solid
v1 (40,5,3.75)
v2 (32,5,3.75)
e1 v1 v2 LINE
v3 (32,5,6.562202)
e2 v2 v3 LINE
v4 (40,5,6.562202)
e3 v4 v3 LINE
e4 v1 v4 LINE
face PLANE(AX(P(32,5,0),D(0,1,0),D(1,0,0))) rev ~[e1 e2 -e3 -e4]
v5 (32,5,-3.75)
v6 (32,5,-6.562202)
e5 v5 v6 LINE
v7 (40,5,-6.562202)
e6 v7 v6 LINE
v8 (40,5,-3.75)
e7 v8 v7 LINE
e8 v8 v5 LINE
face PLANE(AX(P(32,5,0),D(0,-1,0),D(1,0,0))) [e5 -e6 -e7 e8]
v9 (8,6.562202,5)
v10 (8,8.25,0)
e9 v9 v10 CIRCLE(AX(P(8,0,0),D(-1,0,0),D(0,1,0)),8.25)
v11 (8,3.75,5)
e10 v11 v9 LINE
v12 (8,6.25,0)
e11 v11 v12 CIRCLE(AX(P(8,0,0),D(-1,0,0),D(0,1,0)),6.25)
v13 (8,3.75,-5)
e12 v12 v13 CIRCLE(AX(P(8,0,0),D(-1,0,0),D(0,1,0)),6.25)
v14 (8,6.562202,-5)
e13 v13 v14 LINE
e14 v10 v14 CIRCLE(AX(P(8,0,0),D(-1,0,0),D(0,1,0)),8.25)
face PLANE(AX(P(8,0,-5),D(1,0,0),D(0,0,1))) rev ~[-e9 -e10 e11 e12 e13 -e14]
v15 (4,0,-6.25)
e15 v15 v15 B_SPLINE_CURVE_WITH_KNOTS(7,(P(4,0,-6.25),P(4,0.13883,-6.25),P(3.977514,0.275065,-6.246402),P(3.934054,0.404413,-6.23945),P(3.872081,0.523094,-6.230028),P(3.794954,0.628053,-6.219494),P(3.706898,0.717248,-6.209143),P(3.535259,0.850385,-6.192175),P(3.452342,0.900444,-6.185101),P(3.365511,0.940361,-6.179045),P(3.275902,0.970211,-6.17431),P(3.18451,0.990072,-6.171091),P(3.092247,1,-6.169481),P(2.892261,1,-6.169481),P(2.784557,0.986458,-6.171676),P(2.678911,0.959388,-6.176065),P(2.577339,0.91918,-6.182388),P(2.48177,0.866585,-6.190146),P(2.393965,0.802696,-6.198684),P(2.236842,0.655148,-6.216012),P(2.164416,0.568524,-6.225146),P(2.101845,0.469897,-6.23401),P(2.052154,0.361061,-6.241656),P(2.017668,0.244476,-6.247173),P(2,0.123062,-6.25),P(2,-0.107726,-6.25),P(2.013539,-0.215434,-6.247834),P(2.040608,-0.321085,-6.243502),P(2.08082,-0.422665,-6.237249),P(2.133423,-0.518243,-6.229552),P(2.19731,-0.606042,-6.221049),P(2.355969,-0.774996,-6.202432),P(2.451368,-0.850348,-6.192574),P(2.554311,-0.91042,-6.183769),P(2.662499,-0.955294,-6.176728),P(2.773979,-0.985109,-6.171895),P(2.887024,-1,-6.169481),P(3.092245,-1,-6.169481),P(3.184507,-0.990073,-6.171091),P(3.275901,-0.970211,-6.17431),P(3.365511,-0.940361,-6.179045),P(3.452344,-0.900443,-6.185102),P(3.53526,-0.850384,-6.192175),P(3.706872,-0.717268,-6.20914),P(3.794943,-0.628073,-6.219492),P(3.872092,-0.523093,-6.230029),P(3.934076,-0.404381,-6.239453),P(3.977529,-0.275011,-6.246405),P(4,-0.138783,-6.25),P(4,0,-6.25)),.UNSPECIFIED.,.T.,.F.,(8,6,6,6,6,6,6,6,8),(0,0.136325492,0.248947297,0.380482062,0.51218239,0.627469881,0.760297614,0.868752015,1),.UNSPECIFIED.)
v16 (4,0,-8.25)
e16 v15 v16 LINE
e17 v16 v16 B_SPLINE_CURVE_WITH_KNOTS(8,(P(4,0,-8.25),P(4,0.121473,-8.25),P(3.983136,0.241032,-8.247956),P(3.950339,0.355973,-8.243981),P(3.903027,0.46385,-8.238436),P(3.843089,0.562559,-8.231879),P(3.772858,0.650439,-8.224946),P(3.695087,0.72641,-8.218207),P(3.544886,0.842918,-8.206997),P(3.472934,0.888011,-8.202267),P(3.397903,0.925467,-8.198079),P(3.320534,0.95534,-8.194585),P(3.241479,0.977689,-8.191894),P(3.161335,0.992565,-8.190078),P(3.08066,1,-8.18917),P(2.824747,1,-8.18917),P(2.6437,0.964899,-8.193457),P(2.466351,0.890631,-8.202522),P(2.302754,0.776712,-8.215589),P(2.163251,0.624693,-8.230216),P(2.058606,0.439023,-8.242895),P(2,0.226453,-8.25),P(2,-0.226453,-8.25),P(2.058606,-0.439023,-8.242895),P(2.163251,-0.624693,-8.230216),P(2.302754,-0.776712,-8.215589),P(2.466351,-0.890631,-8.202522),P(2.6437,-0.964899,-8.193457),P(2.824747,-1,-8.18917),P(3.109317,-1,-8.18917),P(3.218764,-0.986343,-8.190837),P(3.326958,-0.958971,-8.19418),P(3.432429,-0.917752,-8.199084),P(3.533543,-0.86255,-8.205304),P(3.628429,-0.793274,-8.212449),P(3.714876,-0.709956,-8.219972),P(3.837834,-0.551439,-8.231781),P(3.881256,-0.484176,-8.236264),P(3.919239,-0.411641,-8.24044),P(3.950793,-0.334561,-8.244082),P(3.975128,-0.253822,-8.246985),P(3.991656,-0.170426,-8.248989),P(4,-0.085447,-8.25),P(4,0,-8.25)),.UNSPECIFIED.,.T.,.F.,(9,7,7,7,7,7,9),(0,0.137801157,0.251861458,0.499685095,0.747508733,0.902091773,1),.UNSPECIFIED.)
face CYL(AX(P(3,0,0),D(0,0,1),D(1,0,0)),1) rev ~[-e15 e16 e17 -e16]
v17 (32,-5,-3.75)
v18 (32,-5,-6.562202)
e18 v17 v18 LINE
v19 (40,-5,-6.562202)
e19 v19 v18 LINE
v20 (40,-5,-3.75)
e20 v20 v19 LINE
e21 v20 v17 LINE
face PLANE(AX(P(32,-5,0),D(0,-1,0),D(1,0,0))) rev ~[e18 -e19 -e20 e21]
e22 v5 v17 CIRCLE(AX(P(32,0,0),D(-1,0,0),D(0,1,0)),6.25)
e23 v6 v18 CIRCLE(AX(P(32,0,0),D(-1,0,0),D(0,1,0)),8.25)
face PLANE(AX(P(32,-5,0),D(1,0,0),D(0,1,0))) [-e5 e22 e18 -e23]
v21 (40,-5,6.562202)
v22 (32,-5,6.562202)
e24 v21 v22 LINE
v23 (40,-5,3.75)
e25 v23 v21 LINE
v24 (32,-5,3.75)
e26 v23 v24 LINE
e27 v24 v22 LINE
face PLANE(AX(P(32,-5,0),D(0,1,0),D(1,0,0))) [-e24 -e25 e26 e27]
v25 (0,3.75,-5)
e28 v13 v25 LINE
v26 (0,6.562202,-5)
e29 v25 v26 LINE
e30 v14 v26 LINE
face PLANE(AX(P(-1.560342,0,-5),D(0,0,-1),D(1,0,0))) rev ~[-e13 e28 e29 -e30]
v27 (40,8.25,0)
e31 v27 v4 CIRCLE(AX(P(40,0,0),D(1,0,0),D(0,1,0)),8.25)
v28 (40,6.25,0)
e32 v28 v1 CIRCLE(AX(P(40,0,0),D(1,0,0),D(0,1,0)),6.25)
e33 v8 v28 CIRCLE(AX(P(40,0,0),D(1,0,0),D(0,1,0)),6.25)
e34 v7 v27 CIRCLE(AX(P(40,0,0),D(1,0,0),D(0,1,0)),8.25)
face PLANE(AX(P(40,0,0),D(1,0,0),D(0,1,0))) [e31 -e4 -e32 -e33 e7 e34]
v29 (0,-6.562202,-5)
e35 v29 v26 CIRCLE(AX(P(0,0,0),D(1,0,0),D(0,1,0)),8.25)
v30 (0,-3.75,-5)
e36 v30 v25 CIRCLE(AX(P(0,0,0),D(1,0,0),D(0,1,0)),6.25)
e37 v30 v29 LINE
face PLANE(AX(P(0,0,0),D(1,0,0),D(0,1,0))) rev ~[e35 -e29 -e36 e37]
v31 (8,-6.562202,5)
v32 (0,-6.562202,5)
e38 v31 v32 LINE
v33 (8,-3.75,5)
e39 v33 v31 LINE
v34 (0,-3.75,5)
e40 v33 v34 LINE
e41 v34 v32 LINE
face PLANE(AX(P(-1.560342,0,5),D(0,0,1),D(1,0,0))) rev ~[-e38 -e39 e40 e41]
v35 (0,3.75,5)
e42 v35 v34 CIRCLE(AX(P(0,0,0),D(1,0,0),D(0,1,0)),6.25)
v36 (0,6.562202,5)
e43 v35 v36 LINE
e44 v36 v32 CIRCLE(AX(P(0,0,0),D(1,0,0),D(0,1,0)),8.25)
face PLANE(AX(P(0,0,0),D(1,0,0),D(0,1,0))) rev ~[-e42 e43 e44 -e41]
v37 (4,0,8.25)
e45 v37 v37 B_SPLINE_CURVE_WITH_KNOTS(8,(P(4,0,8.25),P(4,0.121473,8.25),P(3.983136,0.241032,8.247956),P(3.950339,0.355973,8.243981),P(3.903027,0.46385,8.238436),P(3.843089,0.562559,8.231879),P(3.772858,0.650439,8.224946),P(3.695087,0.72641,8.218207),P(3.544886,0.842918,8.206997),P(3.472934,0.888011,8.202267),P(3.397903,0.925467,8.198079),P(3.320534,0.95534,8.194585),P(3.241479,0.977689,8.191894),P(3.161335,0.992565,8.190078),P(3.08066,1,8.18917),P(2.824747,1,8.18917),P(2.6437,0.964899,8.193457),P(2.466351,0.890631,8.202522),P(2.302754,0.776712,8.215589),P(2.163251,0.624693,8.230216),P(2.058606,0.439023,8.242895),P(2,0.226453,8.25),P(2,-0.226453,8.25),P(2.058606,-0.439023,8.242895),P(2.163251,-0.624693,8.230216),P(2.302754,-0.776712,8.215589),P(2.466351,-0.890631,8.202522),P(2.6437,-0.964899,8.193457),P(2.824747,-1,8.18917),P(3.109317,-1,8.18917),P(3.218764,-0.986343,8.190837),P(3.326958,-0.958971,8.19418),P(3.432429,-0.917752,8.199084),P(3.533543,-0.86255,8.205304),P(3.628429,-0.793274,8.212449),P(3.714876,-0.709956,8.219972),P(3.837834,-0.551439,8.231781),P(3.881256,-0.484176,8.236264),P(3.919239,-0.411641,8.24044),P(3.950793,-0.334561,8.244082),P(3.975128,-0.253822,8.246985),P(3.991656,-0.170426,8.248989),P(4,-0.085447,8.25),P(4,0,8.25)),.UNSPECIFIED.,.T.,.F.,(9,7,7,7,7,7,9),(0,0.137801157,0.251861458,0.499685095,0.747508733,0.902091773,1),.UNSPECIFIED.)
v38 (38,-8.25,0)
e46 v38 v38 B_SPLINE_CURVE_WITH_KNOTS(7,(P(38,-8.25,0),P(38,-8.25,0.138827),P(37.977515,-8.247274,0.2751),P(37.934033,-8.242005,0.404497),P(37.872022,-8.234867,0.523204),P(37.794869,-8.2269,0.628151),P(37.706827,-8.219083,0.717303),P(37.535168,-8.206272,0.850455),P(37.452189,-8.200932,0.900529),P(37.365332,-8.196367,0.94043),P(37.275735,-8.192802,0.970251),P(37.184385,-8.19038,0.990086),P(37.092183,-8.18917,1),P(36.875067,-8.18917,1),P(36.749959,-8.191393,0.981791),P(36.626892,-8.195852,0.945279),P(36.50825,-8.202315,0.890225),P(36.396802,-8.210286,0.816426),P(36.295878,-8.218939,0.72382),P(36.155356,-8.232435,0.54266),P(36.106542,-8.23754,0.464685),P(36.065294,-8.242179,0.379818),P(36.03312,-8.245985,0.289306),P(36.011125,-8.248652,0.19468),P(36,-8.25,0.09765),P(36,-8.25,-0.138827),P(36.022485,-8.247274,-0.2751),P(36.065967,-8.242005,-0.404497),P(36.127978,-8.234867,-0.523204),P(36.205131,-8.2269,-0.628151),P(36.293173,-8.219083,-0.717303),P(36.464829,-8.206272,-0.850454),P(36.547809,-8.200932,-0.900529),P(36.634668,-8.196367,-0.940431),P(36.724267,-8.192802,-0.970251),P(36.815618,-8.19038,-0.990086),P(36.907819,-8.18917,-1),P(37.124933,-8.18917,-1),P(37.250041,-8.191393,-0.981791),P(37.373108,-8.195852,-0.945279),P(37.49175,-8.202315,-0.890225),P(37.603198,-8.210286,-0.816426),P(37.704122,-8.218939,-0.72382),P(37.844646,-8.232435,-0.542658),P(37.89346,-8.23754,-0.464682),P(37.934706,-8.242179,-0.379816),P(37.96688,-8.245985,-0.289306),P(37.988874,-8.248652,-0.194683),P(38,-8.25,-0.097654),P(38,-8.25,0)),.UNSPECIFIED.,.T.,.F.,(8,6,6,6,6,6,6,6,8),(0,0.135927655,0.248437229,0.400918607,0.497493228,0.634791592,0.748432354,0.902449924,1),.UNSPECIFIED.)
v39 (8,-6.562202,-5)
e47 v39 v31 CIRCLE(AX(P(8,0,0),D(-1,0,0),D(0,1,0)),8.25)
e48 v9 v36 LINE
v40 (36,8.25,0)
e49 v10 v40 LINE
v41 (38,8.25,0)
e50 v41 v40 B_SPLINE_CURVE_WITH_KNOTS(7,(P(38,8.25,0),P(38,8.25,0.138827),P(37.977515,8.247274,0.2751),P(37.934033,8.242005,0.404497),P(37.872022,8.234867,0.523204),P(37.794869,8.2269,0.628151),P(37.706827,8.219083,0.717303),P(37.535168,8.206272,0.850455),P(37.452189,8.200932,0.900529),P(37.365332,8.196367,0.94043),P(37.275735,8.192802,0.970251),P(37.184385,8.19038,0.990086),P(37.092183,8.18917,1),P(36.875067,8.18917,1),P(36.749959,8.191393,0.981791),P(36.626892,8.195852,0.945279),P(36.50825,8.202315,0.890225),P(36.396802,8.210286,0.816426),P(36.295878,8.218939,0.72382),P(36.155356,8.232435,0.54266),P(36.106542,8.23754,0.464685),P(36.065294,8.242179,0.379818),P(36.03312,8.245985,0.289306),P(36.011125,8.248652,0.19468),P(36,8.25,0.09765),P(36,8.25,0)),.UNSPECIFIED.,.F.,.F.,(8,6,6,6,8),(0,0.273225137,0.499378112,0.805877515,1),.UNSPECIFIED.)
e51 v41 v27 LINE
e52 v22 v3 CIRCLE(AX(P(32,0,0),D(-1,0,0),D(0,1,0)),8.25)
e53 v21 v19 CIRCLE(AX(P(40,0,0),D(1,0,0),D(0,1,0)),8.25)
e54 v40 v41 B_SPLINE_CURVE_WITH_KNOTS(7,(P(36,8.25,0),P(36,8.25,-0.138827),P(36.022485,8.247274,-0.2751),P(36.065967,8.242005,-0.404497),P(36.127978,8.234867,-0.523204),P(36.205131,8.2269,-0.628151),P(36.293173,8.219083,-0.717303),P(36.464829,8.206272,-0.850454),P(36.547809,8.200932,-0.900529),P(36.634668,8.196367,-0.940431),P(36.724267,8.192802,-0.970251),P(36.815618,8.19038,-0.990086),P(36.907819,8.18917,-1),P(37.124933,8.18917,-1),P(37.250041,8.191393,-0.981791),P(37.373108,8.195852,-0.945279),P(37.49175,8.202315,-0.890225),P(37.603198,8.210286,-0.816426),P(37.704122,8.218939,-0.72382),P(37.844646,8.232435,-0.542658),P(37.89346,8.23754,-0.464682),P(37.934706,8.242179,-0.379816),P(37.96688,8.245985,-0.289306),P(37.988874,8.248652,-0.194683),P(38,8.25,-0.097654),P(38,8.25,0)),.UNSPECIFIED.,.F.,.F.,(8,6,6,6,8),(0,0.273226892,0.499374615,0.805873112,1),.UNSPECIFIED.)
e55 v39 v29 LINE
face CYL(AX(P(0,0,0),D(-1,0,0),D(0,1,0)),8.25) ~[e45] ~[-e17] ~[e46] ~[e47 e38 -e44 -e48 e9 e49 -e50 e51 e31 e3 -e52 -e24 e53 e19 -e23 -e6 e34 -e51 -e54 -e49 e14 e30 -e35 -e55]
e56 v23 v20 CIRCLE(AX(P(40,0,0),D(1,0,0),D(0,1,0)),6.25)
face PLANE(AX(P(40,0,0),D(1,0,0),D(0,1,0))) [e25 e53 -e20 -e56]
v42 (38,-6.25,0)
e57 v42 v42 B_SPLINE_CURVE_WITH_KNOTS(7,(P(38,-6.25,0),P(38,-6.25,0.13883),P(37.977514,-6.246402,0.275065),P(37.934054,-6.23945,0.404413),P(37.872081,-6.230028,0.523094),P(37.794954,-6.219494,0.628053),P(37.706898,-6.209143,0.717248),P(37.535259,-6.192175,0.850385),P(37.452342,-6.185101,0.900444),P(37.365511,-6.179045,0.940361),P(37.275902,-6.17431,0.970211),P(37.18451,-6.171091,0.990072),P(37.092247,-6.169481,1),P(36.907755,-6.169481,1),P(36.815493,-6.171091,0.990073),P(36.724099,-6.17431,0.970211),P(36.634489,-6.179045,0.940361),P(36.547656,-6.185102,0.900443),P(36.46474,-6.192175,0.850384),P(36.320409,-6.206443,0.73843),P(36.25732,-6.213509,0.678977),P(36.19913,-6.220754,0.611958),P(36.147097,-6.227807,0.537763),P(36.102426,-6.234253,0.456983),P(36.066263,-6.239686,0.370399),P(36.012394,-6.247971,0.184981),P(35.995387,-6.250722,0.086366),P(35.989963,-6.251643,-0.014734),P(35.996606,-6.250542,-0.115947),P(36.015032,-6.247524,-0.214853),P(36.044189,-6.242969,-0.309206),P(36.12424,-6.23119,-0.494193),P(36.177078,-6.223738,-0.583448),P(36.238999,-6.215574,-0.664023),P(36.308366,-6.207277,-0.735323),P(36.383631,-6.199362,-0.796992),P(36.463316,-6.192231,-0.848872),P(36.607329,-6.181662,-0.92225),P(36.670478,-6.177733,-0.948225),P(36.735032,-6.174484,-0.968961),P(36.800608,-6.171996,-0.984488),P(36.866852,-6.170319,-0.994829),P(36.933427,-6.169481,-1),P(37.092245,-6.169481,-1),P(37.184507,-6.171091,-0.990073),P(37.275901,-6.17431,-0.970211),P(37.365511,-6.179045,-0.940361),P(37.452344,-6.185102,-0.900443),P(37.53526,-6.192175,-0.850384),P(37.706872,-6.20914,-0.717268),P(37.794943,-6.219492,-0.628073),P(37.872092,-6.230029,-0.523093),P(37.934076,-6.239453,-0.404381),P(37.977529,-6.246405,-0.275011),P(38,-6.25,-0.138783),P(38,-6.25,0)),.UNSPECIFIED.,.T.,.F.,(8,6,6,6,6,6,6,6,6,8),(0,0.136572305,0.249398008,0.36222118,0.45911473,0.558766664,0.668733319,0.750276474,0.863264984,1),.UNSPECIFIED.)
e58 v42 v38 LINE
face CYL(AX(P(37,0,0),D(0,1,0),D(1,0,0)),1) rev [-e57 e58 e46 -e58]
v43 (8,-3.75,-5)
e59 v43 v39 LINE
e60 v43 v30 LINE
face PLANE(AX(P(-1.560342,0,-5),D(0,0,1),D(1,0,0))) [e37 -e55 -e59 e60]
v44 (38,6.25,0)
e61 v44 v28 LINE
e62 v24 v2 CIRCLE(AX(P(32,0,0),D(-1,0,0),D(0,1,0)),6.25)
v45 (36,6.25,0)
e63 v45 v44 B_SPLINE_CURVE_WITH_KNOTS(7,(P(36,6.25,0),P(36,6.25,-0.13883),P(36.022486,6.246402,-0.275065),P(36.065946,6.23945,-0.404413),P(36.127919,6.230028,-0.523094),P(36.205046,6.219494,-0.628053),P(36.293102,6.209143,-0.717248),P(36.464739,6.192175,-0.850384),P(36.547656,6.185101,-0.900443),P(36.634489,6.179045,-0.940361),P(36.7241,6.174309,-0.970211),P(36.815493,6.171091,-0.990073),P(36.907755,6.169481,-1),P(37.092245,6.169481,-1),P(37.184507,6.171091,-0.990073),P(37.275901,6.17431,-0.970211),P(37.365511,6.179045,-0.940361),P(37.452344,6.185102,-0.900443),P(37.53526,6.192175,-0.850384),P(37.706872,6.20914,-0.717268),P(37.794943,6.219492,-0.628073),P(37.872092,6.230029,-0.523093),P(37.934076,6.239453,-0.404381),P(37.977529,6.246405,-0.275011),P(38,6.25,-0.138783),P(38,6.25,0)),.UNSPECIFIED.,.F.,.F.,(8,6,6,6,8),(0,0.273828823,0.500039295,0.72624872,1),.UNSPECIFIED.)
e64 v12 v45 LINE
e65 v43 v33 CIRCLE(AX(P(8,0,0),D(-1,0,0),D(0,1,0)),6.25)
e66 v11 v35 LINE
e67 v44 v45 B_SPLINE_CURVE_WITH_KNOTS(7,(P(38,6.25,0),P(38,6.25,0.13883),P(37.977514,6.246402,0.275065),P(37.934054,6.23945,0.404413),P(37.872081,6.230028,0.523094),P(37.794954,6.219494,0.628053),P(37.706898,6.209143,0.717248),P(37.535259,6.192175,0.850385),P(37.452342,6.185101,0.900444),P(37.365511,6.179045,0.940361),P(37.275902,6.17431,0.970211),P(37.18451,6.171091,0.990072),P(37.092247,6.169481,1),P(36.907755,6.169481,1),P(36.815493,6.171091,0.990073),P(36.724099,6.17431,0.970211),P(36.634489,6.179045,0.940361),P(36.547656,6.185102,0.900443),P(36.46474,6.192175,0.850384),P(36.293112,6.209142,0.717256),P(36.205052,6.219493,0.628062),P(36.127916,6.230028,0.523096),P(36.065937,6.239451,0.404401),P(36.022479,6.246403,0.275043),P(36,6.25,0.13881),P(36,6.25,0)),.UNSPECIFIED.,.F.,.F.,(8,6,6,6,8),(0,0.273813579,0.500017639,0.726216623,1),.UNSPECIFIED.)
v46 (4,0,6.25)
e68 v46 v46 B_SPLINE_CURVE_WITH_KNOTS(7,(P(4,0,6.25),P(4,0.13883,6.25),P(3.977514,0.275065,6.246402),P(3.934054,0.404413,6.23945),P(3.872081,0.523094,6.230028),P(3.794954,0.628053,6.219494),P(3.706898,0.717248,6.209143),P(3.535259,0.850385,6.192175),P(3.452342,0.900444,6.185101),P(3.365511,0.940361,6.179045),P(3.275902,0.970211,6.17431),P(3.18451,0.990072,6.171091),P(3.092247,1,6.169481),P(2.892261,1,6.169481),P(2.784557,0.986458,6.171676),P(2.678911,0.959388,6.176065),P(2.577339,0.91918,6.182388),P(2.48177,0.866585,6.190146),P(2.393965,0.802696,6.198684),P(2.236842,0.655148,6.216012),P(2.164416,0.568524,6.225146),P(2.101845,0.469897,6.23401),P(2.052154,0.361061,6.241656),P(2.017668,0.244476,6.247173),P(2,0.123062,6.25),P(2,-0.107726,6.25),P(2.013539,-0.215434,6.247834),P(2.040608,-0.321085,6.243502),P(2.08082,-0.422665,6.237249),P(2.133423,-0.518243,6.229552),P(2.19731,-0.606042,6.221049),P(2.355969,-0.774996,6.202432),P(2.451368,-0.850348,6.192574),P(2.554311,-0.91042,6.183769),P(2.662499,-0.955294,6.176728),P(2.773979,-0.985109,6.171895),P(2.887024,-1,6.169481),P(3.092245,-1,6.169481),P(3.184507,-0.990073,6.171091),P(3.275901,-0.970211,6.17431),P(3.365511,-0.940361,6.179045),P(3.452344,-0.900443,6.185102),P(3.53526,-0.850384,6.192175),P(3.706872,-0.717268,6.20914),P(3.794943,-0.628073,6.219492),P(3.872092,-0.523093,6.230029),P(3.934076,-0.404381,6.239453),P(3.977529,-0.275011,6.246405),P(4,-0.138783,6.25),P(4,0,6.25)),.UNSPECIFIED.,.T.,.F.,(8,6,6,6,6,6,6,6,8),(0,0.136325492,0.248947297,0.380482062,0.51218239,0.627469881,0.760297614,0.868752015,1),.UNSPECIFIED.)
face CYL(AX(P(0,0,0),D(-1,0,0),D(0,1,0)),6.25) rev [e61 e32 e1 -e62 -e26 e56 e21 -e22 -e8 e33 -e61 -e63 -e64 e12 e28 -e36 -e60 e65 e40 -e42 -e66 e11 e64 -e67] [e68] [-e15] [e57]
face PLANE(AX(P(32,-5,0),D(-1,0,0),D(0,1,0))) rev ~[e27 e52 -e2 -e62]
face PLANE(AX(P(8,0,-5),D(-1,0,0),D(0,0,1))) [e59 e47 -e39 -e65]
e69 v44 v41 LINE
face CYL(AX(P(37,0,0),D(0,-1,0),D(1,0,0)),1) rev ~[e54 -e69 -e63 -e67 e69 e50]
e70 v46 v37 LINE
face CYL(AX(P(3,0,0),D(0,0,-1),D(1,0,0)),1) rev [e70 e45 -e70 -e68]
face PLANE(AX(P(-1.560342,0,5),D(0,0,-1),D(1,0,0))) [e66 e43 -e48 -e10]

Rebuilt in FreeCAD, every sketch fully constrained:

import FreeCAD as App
import Part
import Sketcher
Q = App.Units.Quantity


def add_polygon(sketch, points):
    """Adds a closed chain of lines whose ends are joined by coincident constraints."""
    first, n = sketch.GeometryCount, len(points)
    for a, b in zip(points, points[1:] + points[:1]):
        sketch.addGeometry(Part.LineSegment(App.Vector(*a, 0), App.Vector(*b, 0)), False)
    for i in range(n):
        sketch.addConstraint(Sketcher.Constraint("Coincident", first + i, 2, first + (i + 1) % n, 1))

doc = App.newDocument("Part")
body = doc.addObject("PartDesign::Body", "Body")

# Sketch on YZ plane
sketch1 = body.newObject("Sketcher::SketchObject", "Sketch")
sketch1.AttachmentSupport = (doc.getObject("YZ_Plane"), [""])
sketch1.MapMode = "FlatFace"
sketch1.addGeometry([
    Part.Circle(App.Vector(0, 0, 0), App.Vector(0, 0, 1), 8),
    Part.Circle(App.Vector(0, 0, 0), App.Vector(0, 0, 1), 6),
], False)
sketch1.addConstraint([
    Sketcher.Constraint("Coincident", 0, 3, -1, 1),
    Sketcher.Constraint("Coincident", 1, 3, -1, 1),
    Sketcher.Constraint("Diameter", 0, Q("16.5 mm")),
    Sketcher.Constraint("Diameter", 1, Q("12.5 mm")),
])
pad1 = body.newObject("PartDesign::Pad", "Pad")
pad1.Profile = sketch1
pad1.Length = 40

# Sketch on XY plane
sketch2 = body.newObject("Sketcher::SketchObject", "Sketch001")
sketch2.AttachmentSupport = (doc.getObject("XY_Plane"), [""])
sketch2.MapMode = "FlatFace"
add_polygon(sketch2, [(32, 5), (32, -5), (52.5, -5), (52.5, 5)])  # lines 0-3
sketch2.addGeometry(Part.Circle(App.Vector(3, 0, 0), App.Vector(0, 0, 1), 1), False)  # 4
sketch2.addConstraint([
    Sketcher.Constraint("Vertical", 0),
    Sketcher.Constraint("Horizontal", 1),
    Sketcher.Constraint("Vertical", 2),
    Sketcher.Constraint("Horizontal", 3),
    Sketcher.Constraint("PointOnObject", 4, 3, -1),
    Sketcher.Constraint("Diameter", 4, Q("2 mm")),
    Sketcher.Constraint("DistanceY", 0, 2, 0, 1, Q("10 mm")),
    Sketcher.Constraint("DistanceX", -1, 1, 4, 3, Q("3 mm")),
    Sketcher.Constraint("DistanceX", -1, 1, 0, 2, Q("32 mm")),
    Sketcher.Constraint("DistanceY", 0, 2, -1, 1, Q("5 mm")),
    Sketcher.Constraint("DistanceX", 1, 1, 1, 2, Q("20.535375 mm")),
])
pocket1 = body.newObject("PartDesign::Pocket", "Pocket")
pocket1.Profile = sketch2
pocket1.Type = "ThroughAll"
pocket1.Midplane = True

# Sketch on XZ plane
sketch3 = body.newObject("Sketcher::SketchObject", "Sketch002")
sketch3.AttachmentSupport = (doc.getObject("XZ_Plane"), [""])
sketch3.MapMode = "FlatFace"
sketch3.addGeometry(Part.Circle(App.Vector(37, 0, 0), App.Vector(0, 0, 1), 1), False)  # 0
add_polygon(sketch3, [(-1.6, 5), (-1.6, -5), (8, -5), (8, 5)])  # lines 1-4
sketch3.addConstraint([
    Sketcher.Constraint("Vertical", 1),
    Sketcher.Constraint("Horizontal", 2),
    Sketcher.Constraint("Vertical", 3),
    Sketcher.Constraint("Horizontal", 4),
    Sketcher.Constraint("PointOnObject", 0, 3, -1),
    Sketcher.Constraint("Diameter", 0, Q("2 mm")),
    Sketcher.Constraint("DistanceY", 1, 2, 1, 1, Q("10 mm")),
    Sketcher.Constraint("DistanceX", -1, 1, 0, 3, Q("37 mm")),
    Sketcher.Constraint("DistanceY", 1, 2, -1, 1, Q("5 mm")),
    Sketcher.Constraint("DistanceX", -1, 1, 2, 2, Q("8 mm")),
    Sketcher.Constraint("DistanceX", 2, 1, 2, 2, Q("9.560342 mm")),
])
pocket2 = body.newObject("PartDesign::Pocket", "Pocket001")
pocket2.Profile = sketch3
pocket2.Type = "ThroughAll"
pocket2.Midplane = True

doc.recompute()
